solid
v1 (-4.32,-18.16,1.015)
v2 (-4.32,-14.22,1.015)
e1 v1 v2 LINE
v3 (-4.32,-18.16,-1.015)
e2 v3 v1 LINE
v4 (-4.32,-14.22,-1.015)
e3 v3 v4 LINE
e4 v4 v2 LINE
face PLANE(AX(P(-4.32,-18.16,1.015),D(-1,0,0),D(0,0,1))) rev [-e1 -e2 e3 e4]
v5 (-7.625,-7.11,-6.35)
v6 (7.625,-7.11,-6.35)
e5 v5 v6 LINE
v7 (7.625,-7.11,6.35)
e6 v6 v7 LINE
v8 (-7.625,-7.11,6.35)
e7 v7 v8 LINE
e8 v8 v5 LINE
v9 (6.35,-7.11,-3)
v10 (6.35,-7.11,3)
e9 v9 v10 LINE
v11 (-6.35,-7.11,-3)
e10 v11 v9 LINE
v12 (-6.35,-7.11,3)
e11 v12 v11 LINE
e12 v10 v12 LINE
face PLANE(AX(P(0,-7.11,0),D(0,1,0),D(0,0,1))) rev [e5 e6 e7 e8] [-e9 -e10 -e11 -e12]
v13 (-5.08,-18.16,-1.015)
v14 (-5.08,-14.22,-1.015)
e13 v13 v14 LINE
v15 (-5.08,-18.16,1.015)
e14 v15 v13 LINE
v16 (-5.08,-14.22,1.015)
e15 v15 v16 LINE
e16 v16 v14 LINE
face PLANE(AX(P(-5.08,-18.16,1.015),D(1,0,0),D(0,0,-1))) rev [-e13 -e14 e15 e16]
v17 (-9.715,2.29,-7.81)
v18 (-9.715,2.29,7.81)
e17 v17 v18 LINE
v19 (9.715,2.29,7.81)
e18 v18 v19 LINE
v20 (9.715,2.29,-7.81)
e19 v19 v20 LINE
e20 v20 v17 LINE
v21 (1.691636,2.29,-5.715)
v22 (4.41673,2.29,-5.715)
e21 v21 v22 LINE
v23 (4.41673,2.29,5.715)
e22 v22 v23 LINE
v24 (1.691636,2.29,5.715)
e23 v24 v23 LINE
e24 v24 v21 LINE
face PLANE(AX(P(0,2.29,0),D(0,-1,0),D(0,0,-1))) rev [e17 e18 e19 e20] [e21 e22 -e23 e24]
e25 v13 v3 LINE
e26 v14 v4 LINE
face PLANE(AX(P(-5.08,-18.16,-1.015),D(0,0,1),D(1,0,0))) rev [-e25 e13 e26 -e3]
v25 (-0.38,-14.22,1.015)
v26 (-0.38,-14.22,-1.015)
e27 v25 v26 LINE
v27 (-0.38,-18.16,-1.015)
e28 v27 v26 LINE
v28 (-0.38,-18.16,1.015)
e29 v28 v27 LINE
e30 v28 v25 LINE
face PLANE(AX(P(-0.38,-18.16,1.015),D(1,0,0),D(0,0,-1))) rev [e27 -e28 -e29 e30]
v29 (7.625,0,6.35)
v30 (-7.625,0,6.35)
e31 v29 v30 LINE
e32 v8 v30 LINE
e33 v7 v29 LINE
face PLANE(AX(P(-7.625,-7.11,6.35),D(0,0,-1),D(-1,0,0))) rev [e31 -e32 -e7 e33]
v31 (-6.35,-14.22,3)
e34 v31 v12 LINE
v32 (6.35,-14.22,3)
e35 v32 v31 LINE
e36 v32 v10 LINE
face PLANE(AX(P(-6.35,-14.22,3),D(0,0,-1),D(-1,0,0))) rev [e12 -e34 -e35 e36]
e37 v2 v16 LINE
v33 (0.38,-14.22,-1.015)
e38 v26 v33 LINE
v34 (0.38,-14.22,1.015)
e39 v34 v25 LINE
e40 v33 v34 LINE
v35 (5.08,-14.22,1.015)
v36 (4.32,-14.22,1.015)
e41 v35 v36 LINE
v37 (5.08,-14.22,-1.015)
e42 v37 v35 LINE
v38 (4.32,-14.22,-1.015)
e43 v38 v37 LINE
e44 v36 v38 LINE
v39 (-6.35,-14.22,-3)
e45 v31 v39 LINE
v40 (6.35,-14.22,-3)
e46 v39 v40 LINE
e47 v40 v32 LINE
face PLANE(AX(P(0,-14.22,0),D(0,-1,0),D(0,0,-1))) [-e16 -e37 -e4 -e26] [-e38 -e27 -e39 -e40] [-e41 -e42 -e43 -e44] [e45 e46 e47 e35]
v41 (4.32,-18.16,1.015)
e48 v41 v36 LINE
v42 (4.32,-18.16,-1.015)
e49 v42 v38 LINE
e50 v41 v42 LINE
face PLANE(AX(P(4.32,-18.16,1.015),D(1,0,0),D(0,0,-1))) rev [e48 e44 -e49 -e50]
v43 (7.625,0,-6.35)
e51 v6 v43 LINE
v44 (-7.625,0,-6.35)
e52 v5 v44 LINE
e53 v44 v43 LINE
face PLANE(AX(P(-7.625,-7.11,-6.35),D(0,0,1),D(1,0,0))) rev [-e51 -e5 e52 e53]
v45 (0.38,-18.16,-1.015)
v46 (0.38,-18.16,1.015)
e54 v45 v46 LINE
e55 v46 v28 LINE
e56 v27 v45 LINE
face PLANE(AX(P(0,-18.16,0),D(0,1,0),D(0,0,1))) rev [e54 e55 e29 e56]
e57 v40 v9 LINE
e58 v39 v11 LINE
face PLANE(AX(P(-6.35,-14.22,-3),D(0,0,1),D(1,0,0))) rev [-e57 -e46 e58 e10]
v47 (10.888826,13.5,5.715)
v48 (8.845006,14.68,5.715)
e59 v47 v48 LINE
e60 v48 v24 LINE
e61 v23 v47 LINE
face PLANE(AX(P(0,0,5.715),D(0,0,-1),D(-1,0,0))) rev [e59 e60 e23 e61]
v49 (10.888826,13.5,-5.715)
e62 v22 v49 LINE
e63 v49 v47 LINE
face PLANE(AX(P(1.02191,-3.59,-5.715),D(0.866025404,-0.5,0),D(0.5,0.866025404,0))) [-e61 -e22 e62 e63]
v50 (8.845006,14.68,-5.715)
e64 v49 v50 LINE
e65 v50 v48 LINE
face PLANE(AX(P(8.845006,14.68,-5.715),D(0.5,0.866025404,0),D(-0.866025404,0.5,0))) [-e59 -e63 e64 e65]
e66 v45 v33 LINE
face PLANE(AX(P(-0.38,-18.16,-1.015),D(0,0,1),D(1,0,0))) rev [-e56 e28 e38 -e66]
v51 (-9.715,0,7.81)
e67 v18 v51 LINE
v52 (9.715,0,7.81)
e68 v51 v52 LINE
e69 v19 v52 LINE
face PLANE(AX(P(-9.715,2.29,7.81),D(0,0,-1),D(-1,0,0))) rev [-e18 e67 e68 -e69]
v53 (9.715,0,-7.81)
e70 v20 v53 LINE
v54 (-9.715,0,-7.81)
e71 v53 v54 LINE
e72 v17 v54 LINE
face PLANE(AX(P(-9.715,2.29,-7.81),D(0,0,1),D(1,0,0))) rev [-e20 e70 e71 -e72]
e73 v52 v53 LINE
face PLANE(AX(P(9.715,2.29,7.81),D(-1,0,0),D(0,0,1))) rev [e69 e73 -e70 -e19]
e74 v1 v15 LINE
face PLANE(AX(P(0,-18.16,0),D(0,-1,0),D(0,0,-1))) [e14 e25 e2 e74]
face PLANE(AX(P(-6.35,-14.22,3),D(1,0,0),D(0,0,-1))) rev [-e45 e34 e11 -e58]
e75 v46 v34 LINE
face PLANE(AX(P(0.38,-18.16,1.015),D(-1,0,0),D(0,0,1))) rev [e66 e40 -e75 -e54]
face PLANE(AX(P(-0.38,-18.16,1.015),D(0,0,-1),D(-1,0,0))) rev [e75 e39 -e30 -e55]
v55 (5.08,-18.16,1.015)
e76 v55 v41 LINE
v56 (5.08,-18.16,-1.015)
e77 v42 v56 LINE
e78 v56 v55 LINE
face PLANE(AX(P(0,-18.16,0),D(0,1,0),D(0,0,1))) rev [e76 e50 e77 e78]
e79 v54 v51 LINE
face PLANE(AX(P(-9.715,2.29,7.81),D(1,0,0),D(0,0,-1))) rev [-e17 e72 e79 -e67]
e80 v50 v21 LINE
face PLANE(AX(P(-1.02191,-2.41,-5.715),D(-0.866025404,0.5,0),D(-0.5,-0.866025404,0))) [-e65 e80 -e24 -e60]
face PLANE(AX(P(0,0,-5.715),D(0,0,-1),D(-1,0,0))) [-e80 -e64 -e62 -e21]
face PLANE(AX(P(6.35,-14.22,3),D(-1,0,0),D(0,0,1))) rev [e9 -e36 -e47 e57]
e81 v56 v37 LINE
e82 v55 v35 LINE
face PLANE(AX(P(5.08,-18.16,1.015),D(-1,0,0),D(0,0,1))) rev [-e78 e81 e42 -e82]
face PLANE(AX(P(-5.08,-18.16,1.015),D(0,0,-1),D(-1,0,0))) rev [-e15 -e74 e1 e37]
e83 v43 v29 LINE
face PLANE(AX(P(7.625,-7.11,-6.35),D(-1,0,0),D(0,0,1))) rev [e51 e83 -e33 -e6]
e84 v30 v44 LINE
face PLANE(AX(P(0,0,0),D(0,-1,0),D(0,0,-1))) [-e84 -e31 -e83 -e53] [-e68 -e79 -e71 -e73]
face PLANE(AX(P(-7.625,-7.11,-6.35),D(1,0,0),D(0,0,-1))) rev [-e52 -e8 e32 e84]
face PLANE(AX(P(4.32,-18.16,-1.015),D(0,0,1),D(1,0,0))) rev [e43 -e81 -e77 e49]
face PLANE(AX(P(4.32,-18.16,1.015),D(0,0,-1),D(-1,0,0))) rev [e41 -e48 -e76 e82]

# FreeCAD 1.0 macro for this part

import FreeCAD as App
import Part
import Sketcher
from FreeCAD import Vector
Q = App.Units.Quantity

doc = App.newDocument("Part")
body = doc.addObject("PartDesign::Body", "Body")

# Sketch on XZ plane
sketch1 = body.newObject("Sketcher::SketchObject", "Sketch")
sketch1.AttachmentSupport = (doc.getObject("XZ_Plane"), [""])
sketch1.MapMode = "FlatFace"
sketch1.addGeometry(Part.LineSegment(Vector(-9.715, -7.81, 0), Vector(-9.715, 7.81, 0)), False)
sketch1.addGeometry(Part.LineSegment(Vector(-9.715, 7.81, 0), Vector(9.715, 7.81, 0)), False)
sketch1.addGeometry(Part.LineSegment(Vector(9.715, 7.81, 0), Vector(9.715, -7.81, 0)), False)
sketch1.addGeometry(Part.LineSegment(Vector(9.715, -7.81, 0), Vector(-9.715, -7.81, 0)), False)
sketch1.addConstraint(Sketcher.Constraint("Coincident", 0, 2, 1, 1))
sketch1.addConstraint(Sketcher.Constraint("Coincident", 1, 2, 2, 1))
sketch1.addConstraint(Sketcher.Constraint("Coincident", 2, 2, 3, 1))
sketch1.addConstraint(Sketcher.Constraint("Coincident", 3, 2, 0, 1))
sketch1.addConstraint(Sketcher.Constraint("Vertical", 0))
sketch1.addConstraint(Sketcher.Constraint("Horizontal", 1))
sketch1.addConstraint(Sketcher.Constraint("Vertical", 2))
sketch1.addConstraint(Sketcher.Constraint("Horizontal", 3))
sketch1.addConstraint(Sketcher.Constraint("Symmetric", 0, 2, 2, 2, -1, 1))
sketch1.addConstraint(Sketcher.Constraint("DistanceX", 1, 1, 1, 2, 19.43))
sketch1.addConstraint(Sketcher.Constraint("DistanceY", 0, 1, 0, 2, 15.62))
pad1 = body.newObject("PartDesign::Pad", "Pad")
pad1.Profile = sketch1
pad1.Length = 2.29
pad1.Reversed = True

# Sketch on XZ plane
sketch2 = body.newObject("Sketcher::SketchObject", "Sketch001")
sketch2.AttachmentSupport = (doc.getObject("XZ_Plane"), [""])
sketch2.MapMode = "FlatFace"
sketch2.addGeometry(Part.LineSegment(Vector(-7.625, 6.35, 0), Vector(-7.625, -6.35, 0)), False)
sketch2.addGeometry(Part.LineSegment(Vector(-7.625, -6.35, 0), Vector(7.625, -6.35, 0)), False)
sketch2.addGeometry(Part.LineSegment(Vector(7.625, -6.35, 0), Vector(7.625, 6.35, 0)), False)
sketch2.addGeometry(Part.LineSegment(Vector(7.625, 6.35, 0), Vector(-7.625, 6.35, 0)), False)
sketch2.addConstraint(Sketcher.Constraint("Coincident", 0, 2, 1, 1))
sketch2.addConstraint(Sketcher.Constraint("Coincident", 1, 2, 2, 1))
sketch2.addConstraint(Sketcher.Constraint("Coincident", 2, 2, 3, 1))
sketch2.addConstraint(Sketcher.Constraint("Coincident", 3, 2, 0, 1))
sketch2.addConstraint(Sketcher.Constraint("Vertical", 0))
sketch2.addConstraint(Sketcher.Constraint("Horizontal", 1))
sketch2.addConstraint(Sketcher.Constraint("Vertical", 2))
sketch2.addConstraint(Sketcher.Constraint("Horizontal", 3))
sketch2.addConstraint(Sketcher.Constraint("Symmetric", 0, 2, 2, 2, -1, 1))
sketch2.addConstraint(Sketcher.Constraint("DistanceY", 0, 2, 0, 1, Q("0.5 in")))
sketch2.addConstraint(Sketcher.Constraint("DistanceX", 1, 1, 1, 2, 15.25))
pad2 = body.newObject("PartDesign::Pad", "Pad001")
pad2.Profile = sketch2
pad2.Length = 7.11

# Sketch on XZ plane
sketch3 = body.newObject("Sketcher::SketchObject", "Sketch002")
sketch3.AttachmentSupport = (doc.getObject("XZ_Plane"), [""])
sketch3.MapMode = "FlatFace"
sketch3.AttachmentOffset = App.Placement(Vector(0, 0, 7.11), App.Rotation())
sketch3.addGeometry(Part.LineSegment(Vector(-6.35, 3, 0), Vector(-6.35, -3, 0)), False)
sketch3.addGeometry(Part.LineSegment(Vector(-6.35, -3, 0), Vector(6.35, -3, 0)), False)
sketch3.addGeometry(Part.LineSegment(Vector(6.35, -3, 0), Vector(6.35, 3, 0)), False)
sketch3.addGeometry(Part.LineSegment(Vector(6.35, 3, 0), Vector(-6.35, 3, 0)), False)
sketch3.addConstraint(Sketcher.Constraint("Coincident", 0, 2, 1, 1))
sketch3.addConstraint(Sketcher.Constraint("Coincident", 1, 2, 2, 1))
sketch3.addConstraint(Sketcher.Constraint("Coincident", 2, 2, 3, 1))
sketch3.addConstraint(Sketcher.Constraint("Coincident", 3, 2, 0, 1))
sketch3.addConstraint(Sketcher.Constraint("Vertical", 0))
sketch3.addConstraint(Sketcher.Constraint("Horizontal", 1))
sketch3.addConstraint(Sketcher.Constraint("Vertical", 2))
sketch3.addConstraint(Sketcher.Constraint("Horizontal", 3))
sketch3.addConstraint(Sketcher.Constraint("Symmetric", 0, 2, 2, 2, -1, 1))
sketch3.addConstraint(Sketcher.Constraint("DistanceX", 1, 1, 1, 2, Q("0.5 in")))
sketch3.addConstraint(Sketcher.Constraint("DistanceY", 0, 2, 0, 1, 6.0))
pad3 = body.newObject("PartDesign::Pad", "Pad002")
pad3.Profile = sketch3
pad3.Length = 7.11

# Sketch on XZ plane
sketch4 = body.newObject("Sketcher::SketchObject", "Sketch003")
sketch4.AttachmentSupport = (doc.getObject("XZ_Plane"), [""])
sketch4.MapMode = "FlatFace"
sketch4.AttachmentOffset = App.Placement(Vector(0, 0, 14.22), App.Rotation())
sketch4.addGeometry(Part.LineSegment(Vector(-0.38, 1.015, 0), Vector(-0.38, -1.015, 0)), False)
sketch4.addGeometry(Part.LineSegment(Vector(-0.38, -1.015, 0), Vector(0.38, -1.015, 0)), False)
sketch4.addGeometry(Part.LineSegment(Vector(0.38, -1.015, 0), Vector(0.38, 1.015, 0)), False)
sketch4.addGeometry(Part.LineSegment(Vector(0.38, 1.015, 0), Vector(-0.38, 1.015, 0)), False)
sketch4.addGeometry(Part.LineSegment(Vector(-5.08, 1.015, 0), Vector(-5.08, -1.015, 0)), False)
sketch4.addGeometry(Part.LineSegment(Vector(-5.08, -1.015, 0), Vector(-4.32, -1.015, 0)), False)
sketch4.addGeometry(Part.LineSegment(Vector(-4.32, -1.015, 0), Vector(-4.32, 1.015, 0)), False)
sketch4.addGeometry(Part.LineSegment(Vector(-4.32, 1.015, 0), Vector(-5.08, 1.015, 0)), False)
sketch4.addGeometry(Part.LineSegment(Vector(4.32, 1.015, 0), Vector(4.32, -1.015, 0)), False)
sketch4.addGeometry(Part.LineSegment(Vector(4.32, -1.015, 0), Vector(5.08, -1.015, 0)), False)
sketch4.addGeometry(Part.LineSegment(Vector(5.08, -1.015, 0), Vector(5.08, 1.015, 0)), False)
sketch4.addGeometry(Part.LineSegment(Vector(5.08, 1.015, 0), Vector(4.32, 1.015, 0)), False)
sketch4.addConstraint(Sketcher.Constraint("Coincident", 0, 2, 1, 1))
sketch4.addConstraint(Sketcher.Constraint("Coincident", 1, 2, 2, 1))
sketch4.addConstraint(Sketcher.Constraint("Coincident", 2, 2, 3, 1))
sketch4.addConstraint(Sketcher.Constraint("Coincident", 3, 2, 0, 1))
sketch4.addConstraint(Sketcher.Constraint("Coincident", 4, 2, 5, 1))
sketch4.addConstraint(Sketcher.Constraint("Coincident", 5, 2, 6, 1))
sketch4.addConstraint(Sketcher.Constraint("Coincident", 6, 2, 7, 1))
sketch4.addConstraint(Sketcher.Constraint("Coincident", 7, 2, 4, 1))
sketch4.addConstraint(Sketcher.Constraint("Coincident", 8, 2, 9, 1))
sketch4.addConstraint(Sketcher.Constraint("Coincident", 9, 2, 10, 1))
sketch4.addConstraint(Sketcher.Constraint("Coincident", 10, 2, 11, 1))
sketch4.addConstraint(Sketcher.Constraint("Coincident", 11, 2, 8, 1))
sketch4.addConstraint(Sketcher.Constraint("Vertical", 0))
sketch4.addConstraint(Sketcher.Constraint("Horizontal", 1))
sketch4.addConstraint(Sketcher.Constraint("Vertical", 2))
sketch4.addConstraint(Sketcher.Constraint("Horizontal", 3))
sketch4.addConstraint(Sketcher.Constraint("Vertical", 4))
sketch4.addConstraint(Sketcher.Constraint("Horizontal", 5))
sketch4.addConstraint(Sketcher.Constraint("Vertical", 6))
sketch4.addConstraint(Sketcher.Constraint("Horizontal", 7))
sketch4.addConstraint(Sketcher.Constraint("Vertical", 8))
sketch4.addConstraint(Sketcher.Constraint("Horizontal", 9))
sketch4.addConstraint(Sketcher.Constraint("Vertical", 10))
sketch4.addConstraint(Sketcher.Constraint("Horizontal", 11))
sketch4.addConstraint(Sketcher.Constraint("Symmetric", 0, 2, 2, 2, -1, 1))
sketch4.addConstraint(Sketcher.Constraint("Symmetric", 6, 2, 8, 2, -1, 1))
sketch4.addConstraint(Sketcher.Constraint("Symmetric", 4, 2, 10, 2, -1, 1))
sketch4.addConstraint(Sketcher.Constraint("Horizontal", 1, 2, 4, 2))
sketch4.addConstraint(Sketcher.Constraint("Horizontal", 3, 2, 6, 2))
sketch4.addConstraint(Sketcher.Constraint("Equal", 3, 5))
sketch4.addConstraint(Sketcher.Constraint("DistanceX", 4, 2, -1, 1, Q("0.2 in")))
sketch4.addConstraint(Sketcher.Constraint("DistanceX", 1, 1, 1, 2, 0.76))
sketch4.addConstraint(Sketcher.Constraint("DistanceY", 0, 2, 0, 1, 2.03))
pad4 = body.newObject("PartDesign::Pad", "Pad003")
pad4.Profile = sketch4
pad4.Length = 3.94

# Sketch on XY plane
sketch5 = body.newObject("Sketcher::SketchObject", "Sketch004")
sketch5.AttachmentSupport = (doc.getObject("XY_Plane"), [""])
sketch5.MapMode = "FlatFace"
sketch5.addGeometry(Part.LineSegment(Vector(-1.02191, -2.41, 0), Vector(1.02191, -3.59, 0)), False)
sketch5.addGeometry(Part.LineSegment(Vector(1.02191, -3.59, 0), Vector(10.888826, 13.5, 0)), False)
sketch5.addGeometry(Part.LineSegment(Vector(10.888826, 13.5, 0), Vector(8.845006, 14.68, 0)), False)
sketch5.addGeometry(Part.LineSegment(Vector(8.845006, 14.68, 0), Vector(-1.02191, -2.41, 0)), False)
sketch5.addConstraint(Sketcher.Constraint("Coincident", 0, 2, 1, 1))
sketch5.addConstraint(Sketcher.Constraint("Coincident", 1, 2, 2, 1))
sketch5.addConstraint(Sketcher.Constraint("Coincident", 2, 2, 3, 1))
sketch5.addConstraint(Sketcher.Constraint("Coincident", 3, 2, 0, 1))
sketch5.addConstraint(Sketcher.Constraint("Perpendicular", 0, 1))
sketch5.addConstraint(Sketcher.Constraint("Perpendicular", 1, 2))
sketch5.addConstraint(Sketcher.Constraint("Perpendicular", 2, 3))
sketch5.addConstraint(Sketcher.Constraint("Angle", 0, Q("-30 deg")))
sketch5.addConstraint(Sketcher.Constraint("Distance", 0, 2.36))
sketch5.addConstraint(Sketcher.Constraint("DistanceY", 0, 2, -1, 1, 3.59))
sketch5.addConstraint(Sketcher.Constraint("DistanceY", -1, 1, 1, 2, 13.5))
sketch5.addConstraint(Sketcher.Constraint("DistanceX", -1, 1, 0, 2, 1.02191))
pad5 = body.newObject("PartDesign::Pad", "Pad004")
pad5.Profile = sketch5
pad5.Type = "TwoLengths"
pad5.Length = Q("0.225 in")
pad5.Length2 = Q("0.225 in")

doc.recompute()
